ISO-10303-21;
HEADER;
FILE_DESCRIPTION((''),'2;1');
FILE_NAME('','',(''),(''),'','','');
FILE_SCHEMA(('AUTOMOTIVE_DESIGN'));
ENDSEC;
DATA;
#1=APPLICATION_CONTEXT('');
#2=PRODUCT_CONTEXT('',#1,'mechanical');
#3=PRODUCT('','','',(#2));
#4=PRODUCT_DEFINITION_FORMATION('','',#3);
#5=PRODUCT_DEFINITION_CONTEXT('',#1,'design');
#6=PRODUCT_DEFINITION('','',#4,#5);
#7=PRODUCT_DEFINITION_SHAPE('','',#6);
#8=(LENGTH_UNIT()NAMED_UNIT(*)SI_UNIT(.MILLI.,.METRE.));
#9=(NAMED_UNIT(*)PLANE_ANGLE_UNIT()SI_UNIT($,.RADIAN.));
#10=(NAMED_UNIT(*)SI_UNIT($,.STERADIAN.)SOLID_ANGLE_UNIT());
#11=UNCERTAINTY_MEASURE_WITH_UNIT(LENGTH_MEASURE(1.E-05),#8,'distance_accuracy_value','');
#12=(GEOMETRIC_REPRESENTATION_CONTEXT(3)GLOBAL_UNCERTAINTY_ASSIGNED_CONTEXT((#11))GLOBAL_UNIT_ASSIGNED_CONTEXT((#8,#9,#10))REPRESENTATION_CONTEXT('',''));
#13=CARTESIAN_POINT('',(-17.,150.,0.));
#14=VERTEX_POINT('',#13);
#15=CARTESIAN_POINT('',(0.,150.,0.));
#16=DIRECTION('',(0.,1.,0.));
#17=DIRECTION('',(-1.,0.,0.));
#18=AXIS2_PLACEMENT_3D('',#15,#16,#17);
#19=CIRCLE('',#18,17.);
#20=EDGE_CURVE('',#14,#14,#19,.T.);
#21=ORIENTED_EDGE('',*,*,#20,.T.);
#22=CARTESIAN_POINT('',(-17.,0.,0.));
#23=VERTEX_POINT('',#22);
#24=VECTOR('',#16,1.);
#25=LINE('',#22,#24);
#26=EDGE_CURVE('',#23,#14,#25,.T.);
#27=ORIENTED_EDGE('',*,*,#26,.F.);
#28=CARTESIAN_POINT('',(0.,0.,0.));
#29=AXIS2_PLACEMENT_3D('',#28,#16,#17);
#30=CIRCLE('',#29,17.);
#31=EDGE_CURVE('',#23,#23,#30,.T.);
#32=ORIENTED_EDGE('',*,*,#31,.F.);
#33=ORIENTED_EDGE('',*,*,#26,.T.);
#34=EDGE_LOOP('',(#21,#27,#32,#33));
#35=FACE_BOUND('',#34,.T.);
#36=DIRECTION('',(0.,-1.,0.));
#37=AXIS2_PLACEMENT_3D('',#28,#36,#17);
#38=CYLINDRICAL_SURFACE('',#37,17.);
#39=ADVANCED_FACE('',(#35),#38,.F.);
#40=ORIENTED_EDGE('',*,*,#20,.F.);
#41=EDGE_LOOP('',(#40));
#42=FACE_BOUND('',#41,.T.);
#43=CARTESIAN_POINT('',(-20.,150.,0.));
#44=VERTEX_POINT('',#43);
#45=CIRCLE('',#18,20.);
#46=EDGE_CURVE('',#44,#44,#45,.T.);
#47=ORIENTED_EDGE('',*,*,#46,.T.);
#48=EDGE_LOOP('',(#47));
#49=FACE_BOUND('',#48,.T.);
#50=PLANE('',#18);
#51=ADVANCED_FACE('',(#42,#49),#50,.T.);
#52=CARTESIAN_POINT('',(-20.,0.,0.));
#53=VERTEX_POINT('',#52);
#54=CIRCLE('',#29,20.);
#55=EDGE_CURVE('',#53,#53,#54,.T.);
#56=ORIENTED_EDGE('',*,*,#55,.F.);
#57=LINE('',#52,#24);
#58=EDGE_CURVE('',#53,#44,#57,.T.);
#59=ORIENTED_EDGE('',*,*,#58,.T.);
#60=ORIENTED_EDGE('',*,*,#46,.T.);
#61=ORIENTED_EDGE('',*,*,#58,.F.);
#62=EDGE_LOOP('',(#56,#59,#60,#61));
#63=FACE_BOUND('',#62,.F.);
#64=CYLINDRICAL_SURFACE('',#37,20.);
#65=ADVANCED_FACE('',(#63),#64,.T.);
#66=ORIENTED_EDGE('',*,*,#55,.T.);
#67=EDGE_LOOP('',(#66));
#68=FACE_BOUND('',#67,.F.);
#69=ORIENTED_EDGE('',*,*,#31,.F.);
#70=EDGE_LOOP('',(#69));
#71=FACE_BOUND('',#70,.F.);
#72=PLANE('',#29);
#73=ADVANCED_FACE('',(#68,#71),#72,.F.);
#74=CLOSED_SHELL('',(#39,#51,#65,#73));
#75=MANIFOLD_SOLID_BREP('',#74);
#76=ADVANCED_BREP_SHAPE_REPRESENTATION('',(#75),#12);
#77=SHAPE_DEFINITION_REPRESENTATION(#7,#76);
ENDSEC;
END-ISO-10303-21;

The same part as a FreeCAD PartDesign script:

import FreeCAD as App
import Part
import Sketcher

V = App.Vector
Q = App.Units.Quantity

doc = App.newDocument("Part")
body = doc.addObject("PartDesign::Body", "Body")

# Sketch on XZ plane
sketch1 = body.newObject("Sketcher::SketchObject", "Sketch")
sketch1.AttachmentSupport = (doc.getObject("XZ_Plane"), [""])
sketch1.MapMode = "FlatFace"
sketch1.addGeometry(Part.Circle(V(0, 0, 0), V(0, 0, 1), 20), False)
sketch1.addGeometry(Part.Circle(V(0, 0, 0), V(0, 0, 1), 17), False)
sketch1.addConstraint(Sketcher.Constraint("Coincident", 0, 3, -1, 1))
sketch1.addConstraint(Sketcher.Constraint("Coincident", 1, 3, -1, 1))
sketch1.addConstraint(Sketcher.Constraint("Diameter", 0, Q("40 mm")))
sketch1.addConstraint(Sketcher.Constraint("Diameter", 1, Q("34 mm")))
pad1 = body.newObject("PartDesign::Pad", "Pad")
pad1.Profile = sketch1
pad1.Length = 150
pad1.Reversed = True

doc.recompute()
